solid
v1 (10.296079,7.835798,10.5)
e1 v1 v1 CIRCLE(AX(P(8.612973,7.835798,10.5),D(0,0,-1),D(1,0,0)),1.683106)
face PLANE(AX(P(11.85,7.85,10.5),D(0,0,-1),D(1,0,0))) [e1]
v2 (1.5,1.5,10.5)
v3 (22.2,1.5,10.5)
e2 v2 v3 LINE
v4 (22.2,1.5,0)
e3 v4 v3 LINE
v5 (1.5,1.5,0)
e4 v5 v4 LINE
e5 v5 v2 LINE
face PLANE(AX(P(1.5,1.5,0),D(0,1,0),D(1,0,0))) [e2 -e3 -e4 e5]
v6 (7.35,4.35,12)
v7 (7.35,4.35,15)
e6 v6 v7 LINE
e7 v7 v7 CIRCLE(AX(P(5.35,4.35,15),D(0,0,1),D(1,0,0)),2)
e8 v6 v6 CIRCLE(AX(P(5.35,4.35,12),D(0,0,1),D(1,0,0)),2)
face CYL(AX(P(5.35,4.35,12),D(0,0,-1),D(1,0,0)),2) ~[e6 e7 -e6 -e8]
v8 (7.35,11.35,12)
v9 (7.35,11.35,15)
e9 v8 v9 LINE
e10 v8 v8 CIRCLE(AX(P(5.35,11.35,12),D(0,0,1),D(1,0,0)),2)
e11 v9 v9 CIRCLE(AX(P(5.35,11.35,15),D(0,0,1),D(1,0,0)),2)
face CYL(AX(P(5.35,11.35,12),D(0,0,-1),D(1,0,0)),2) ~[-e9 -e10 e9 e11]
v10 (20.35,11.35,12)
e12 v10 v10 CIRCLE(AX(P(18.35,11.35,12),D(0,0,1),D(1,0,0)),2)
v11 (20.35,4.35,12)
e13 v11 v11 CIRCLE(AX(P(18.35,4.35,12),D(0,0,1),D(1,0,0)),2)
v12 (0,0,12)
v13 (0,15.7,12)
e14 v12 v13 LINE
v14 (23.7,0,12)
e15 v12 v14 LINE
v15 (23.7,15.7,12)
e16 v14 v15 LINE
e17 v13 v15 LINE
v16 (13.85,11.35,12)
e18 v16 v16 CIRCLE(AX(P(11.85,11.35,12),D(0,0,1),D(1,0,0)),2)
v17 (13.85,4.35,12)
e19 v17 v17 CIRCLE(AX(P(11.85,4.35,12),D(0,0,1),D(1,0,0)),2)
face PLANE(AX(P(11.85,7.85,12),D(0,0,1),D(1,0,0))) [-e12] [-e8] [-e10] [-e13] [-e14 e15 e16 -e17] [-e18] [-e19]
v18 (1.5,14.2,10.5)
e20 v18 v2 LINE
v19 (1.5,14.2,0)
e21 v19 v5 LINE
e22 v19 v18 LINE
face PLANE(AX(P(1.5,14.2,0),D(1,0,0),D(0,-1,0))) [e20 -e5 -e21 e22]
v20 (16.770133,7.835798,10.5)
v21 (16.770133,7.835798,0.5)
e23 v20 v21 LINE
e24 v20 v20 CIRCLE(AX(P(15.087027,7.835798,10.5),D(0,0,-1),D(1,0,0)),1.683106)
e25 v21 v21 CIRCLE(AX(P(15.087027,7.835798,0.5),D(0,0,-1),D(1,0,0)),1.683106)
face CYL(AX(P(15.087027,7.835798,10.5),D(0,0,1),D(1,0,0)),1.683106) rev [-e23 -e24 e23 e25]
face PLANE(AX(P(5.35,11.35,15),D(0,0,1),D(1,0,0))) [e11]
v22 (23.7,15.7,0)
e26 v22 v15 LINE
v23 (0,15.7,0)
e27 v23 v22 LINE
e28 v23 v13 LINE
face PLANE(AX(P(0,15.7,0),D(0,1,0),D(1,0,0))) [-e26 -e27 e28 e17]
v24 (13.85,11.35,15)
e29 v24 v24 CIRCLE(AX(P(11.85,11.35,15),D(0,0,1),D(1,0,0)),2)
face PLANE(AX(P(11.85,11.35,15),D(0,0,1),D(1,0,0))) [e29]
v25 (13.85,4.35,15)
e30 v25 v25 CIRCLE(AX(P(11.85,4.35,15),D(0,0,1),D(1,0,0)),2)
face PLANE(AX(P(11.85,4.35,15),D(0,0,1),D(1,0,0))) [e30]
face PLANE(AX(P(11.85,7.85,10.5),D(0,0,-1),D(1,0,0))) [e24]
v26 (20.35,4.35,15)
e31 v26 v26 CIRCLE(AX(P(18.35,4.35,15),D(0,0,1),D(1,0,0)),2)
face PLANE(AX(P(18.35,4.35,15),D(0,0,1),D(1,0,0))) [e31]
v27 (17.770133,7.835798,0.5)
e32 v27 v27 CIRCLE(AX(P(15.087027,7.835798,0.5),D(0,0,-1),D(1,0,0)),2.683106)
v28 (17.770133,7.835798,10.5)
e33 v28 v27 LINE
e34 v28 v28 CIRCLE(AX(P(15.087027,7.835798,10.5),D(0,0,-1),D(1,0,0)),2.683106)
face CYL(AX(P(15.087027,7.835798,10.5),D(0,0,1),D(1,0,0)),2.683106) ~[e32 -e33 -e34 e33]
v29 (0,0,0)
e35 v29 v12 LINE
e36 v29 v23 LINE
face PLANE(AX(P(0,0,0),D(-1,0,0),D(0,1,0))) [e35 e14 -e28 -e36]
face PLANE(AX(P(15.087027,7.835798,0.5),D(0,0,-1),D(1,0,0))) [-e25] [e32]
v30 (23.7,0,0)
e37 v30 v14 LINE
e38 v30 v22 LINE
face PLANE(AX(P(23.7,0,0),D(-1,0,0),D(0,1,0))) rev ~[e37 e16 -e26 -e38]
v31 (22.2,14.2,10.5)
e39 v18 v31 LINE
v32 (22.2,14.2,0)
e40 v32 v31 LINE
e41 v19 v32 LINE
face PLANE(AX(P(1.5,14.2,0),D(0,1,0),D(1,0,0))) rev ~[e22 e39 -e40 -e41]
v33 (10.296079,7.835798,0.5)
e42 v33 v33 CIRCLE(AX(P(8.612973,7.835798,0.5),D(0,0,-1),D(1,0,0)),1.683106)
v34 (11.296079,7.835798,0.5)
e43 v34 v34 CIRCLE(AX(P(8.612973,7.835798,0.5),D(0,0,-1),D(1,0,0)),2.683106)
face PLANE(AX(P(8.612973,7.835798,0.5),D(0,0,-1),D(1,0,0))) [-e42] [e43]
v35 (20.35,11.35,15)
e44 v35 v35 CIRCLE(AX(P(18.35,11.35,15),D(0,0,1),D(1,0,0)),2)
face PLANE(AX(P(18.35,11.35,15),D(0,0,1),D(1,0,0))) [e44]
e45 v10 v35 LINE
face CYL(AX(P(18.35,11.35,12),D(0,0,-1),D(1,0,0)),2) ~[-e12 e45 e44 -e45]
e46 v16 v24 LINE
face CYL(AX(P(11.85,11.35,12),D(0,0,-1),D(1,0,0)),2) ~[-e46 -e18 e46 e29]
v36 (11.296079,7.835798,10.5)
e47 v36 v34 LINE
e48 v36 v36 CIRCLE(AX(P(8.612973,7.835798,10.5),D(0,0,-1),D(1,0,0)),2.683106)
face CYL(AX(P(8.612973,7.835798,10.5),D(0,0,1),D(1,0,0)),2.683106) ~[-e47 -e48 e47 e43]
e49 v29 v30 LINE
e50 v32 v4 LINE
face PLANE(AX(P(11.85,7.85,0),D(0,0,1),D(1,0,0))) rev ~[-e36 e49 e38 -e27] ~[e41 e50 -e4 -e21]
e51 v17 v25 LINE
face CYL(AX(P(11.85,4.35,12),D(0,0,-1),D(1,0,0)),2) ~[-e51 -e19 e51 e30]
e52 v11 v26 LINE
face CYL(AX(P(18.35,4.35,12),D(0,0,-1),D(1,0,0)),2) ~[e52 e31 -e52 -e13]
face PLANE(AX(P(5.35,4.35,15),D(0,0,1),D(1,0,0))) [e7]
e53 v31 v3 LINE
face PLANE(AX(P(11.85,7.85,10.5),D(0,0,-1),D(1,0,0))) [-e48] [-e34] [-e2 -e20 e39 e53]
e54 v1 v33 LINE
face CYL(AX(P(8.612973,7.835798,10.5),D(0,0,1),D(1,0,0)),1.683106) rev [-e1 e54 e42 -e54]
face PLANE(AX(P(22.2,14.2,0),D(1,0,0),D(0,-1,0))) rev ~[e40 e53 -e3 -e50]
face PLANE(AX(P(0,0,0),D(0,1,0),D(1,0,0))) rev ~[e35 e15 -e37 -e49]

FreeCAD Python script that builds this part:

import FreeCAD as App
import Part
import Sketcher
from FreeCAD import Vector
Q = App.Units.Quantity


def add_polygon(sketch, points):
    """Adds a closed chain of lines whose ends are joined by coincident constraints."""
    first, n = sketch.GeometryCount, len(points)
    for a, b in zip(points, points[1:] + points[:1]):
        sketch.addGeometry(Part.LineSegment(App.Vector(*a, 0), App.Vector(*b, 0)), False)
    for i in range(n):
        sketch.addConstraint(Sketcher.Constraint("Coincident", first + i, 2, first + (i + 1) % n, 1))

doc = App.newDocument("Part")
body = doc.addObject("PartDesign::Body", "Body")

# Sketch on XY plane
sketch1 = body.newObject("Sketcher::SketchObject", "Sketch")
sketch1.AttachmentSupport = (doc.getObject("XY_Plane"), [""])
sketch1.MapMode = "FlatFace"
add_polygon(sketch1, [(0, 15.7), (0, 0), (23.7, 0), (23.7, 15.7)])  # lines 0-3
sketch1.addConstraint([
    Sketcher.Constraint("Vertical", 0),
    Sketcher.Constraint("Horizontal", 1),
    Sketcher.Constraint("Vertical", 2),
    Sketcher.Constraint("Horizontal", 3),
    Sketcher.Constraint("Coincident", 0, 2, -1, 1),
    Sketcher.Constraint("DistanceX", 1, 1, 1, 2, Q("23.7 mm")),
    Sketcher.Constraint("DistanceY", 0, 2, 0, 1, Q("15.7 mm")),
])
pad1 = body.newObject("PartDesign::Pad", "Pad")
pad1.Profile = sketch1
pad1.Length = 12

# Sketch on XY plane
sketch2 = body.newObject("Sketcher::SketchObject", "Sketch001")
sketch2.AttachmentSupport = (doc.getObject("XY_Plane"), [""])
sketch2.MapMode = "FlatFace"
sketch2.AttachmentOffset = App.Placement(Vector(0, 0, 12), App.Rotation())
sketch2.addGeometry([
    Part.Circle(Vector(5.35, 11.35, 0), Vector(0, 0, 1), 2),  # 0
    Part.Circle(Vector(11.85, 11.35, 0), Vector(0, 0, 1), 2),  # 1
    Part.Circle(Vector(18.35, 11.35, 0), Vector(0, 0, 1), 2),  # 2
    Part.Circle(Vector(5.35, 4.35, 0), Vector(0, 0, 1), 2),  # 3
    Part.Circle(Vector(11.85, 4.35, 0), Vector(0, 0, 1), 2),  # 4
    Part.Circle(Vector(18.35, 4.35, 0), Vector(0, 0, 1), 2),  # 5
], False)
sketch2.addConstraint([
    Sketcher.Constraint("Equal", 0, 1),
    Sketcher.Constraint("Equal", 1, 2),
    Sketcher.Constraint("Equal", 2, 3),
    Sketcher.Constraint("Equal", 3, 4),
    Sketcher.Constraint("Equal", 4, 5),
    Sketcher.Constraint("Horizontal", 0, 3, 1, 3),
    Sketcher.Constraint("Horizontal", 1, 3, 2, 3),
    Sketcher.Constraint("Horizontal", 3, 3, 4, 3),
    Sketcher.Constraint("Horizontal", 4, 3, 5, 3),
    Sketcher.Constraint("Vertical", 0, 3, 3, 3),
    Sketcher.Constraint("Vertical", 1, 3, 4, 3),
    Sketcher.Constraint("Vertical", 2, 3, 5, 3),
    Sketcher.Constraint("Diameter", 0, Q("4 mm")),
    Sketcher.Constraint("DistanceX", 0, 3, 2, 3, Q("13 mm")),
    Sketcher.Constraint("DistanceY", 3, 3, 0, 3, Q("7 mm")),
    Sketcher.Constraint("DistanceX", 0, 3, 1, 3, Q("6.5 mm")),
    Sketcher.Constraint("DistanceX", -1, 1, 0, 3, Q("5.35 mm")),
    Sketcher.Constraint("DistanceY", -1, 1, 0, 3, Q("11.35 mm")),
])
pad2 = body.newObject("PartDesign::Pad", "Pad001")
pad2.Profile = sketch2
pad2.Length = 3

# Sketch on XY plane
sketch3 = body.newObject("Sketcher::SketchObject", "Sketch002")
sketch3.AttachmentSupport = (doc.getObject("XY_Plane"), [""])
sketch3.MapMode = "FlatFace"
add_polygon(sketch3, [(1.5, 1.5), (1.5, 14.2), (22.2, 14.2), (22.2, 1.5)])  # lines 0-3
sketch3.addConstraint([
    Sketcher.Constraint("Vertical", 0),
    Sketcher.Constraint("Horizontal", 1),
    Sketcher.Constraint("Vertical", 2),
    Sketcher.Constraint("Horizontal", 3),
    Sketcher.Constraint("DistanceX", 1, 1, 1, 2, Q("20.7 mm")),
    Sketcher.Constraint("DistanceY", 0, 1, 0, 2, Q("12.7 mm")),
    Sketcher.Constraint("DistanceX", -1, 1, 0, 2, Q("1.5 mm")),
    Sketcher.Constraint("DistanceY", -1, 1, 0, 2, Q("14.2 mm")),
])
pocket1 = body.newObject("PartDesign::Pocket", "Pocket")
pocket1.Profile = sketch3
pocket1.Length = 10.5
pocket1.Reversed = True

# Sketch on XY plane
sketch4 = body.newObject("Sketcher::SketchObject", "Sketch003")
sketch4.AttachmentSupport = (doc.getObject("XY_Plane"), [""])
sketch4.MapMode = "FlatFace"
sketch4.AttachmentOffset = App.Placement(Vector(0, 0, 10.5), App.Rotation())
sketch4.addGeometry([
    Part.Circle(Vector(8.612973, 7.835798, 0), Vector(0, 0, 1), 2.683106),
    Part.Circle(Vector(8.612973, 7.835798, 0), Vector(0, 0, 1), 1.683106),
    Part.Circle(Vector(15.087027, 7.835798, 0), Vector(0, 0, 1), 2.683106),
    Part.Circle(Vector(15.087027, 7.835798, 0), Vector(0, 0, 1), 1.683106),
], False)
sketch4.addConstraint([
    Sketcher.Constraint("Coincident", 1, 3, 0, 3),
    Sketcher.Constraint("Coincident", 3, 3, 2, 3),
    Sketcher.Constraint("Equal", 0, 2),
    Sketcher.Constraint("Equal", 1, 3),
    Sketcher.Constraint("Horizontal", 1, 3, 2, 3),
    Sketcher.Constraint("Diameter", 1, Q("3.366212 mm")),
    Sketcher.Constraint("Diameter", 0, Q("5.366212 mm")),
    Sketcher.Constraint("DistanceX", -1, 1, 0, 3, Q("8.612973 mm")),
    Sketcher.Constraint("DistanceY", -1, 1, 0, 3, Q("7.835798 mm")),
    Sketcher.Constraint("DistanceX", -1, 1, 2, 3, Q("15.087027 mm")),
])
pad3 = body.newObject("PartDesign::Pad", "Pad002")
pad3.Profile = sketch4
pad3.Length = 10
pad3.Reversed = True

doc.recompute()
